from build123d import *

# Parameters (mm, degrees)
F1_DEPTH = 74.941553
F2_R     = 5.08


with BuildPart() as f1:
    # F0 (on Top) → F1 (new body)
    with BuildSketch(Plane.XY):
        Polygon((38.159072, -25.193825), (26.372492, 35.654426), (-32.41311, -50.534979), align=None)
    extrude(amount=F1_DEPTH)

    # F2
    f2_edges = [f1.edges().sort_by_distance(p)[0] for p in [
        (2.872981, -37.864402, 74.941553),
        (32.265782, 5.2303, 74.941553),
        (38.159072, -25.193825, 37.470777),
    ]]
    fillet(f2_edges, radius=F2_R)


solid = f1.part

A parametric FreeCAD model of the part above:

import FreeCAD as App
import Part
import Sketcher
from FreeCAD import Vector
Q = App.Units.Quantity


def edges_at(feature, points):
    """Names of the edges that pass closest to the given points."""
    edges = feature.Shape.Edges
    near = lambda p: min(range(len(edges)), key=lambda i: edges[i].distToShape(Part.Vertex(*p))[0])
    return sorted({f"Edge{near(p) + 1}" for p in points})


def add_polygon(sketch, points):
    """Adds a closed chain of lines whose ends are joined by coincident constraints."""
    first, n = sketch.GeometryCount, len(points)
    for a, b in zip(points, points[1:] + points[:1]):
        sketch.addGeometry(Part.LineSegment(App.Vector(*a, 0), App.Vector(*b, 0)), False)
    for i in range(n):
        sketch.addConstraint(Sketcher.Constraint("Coincident", first + i, 2, first + (i + 1) % n, 1))

doc = App.newDocument("Part")
body = doc.addObject("PartDesign::Body", "Body")

sketch1 = doc.addObject("Sketcher::SketchObject", "Sketch")
body.addObject(sketch1)
sketch1.AttachmentSupport = (doc.XY_Plane, [""])
sketch1.MapMode = "FlatFace"
add_polygon(sketch1, [(38, -25), (26, 36), (-32, -51)])
sketch1.addConstraint([
    Sketcher.Constraint("Distance", 1, Q("104.328139 mm")),
    Sketcher.Constraint("DistanceX", 1, 2, -1, 1, Q("32.41311 mm")),
    Sketcher.Constraint("DistanceY", 1, 2, -1, 1, Q("50.534979 mm")),
    Sketcher.Constraint("DistanceX", 0, 2, 2, 2, Q("11.78658 mm")),
    Sketcher.Constraint("DistanceY", 2, 2, 0, 2, Q("60.848251 mm")),
    Sketcher.Constraint("DistanceX", 1, 2, 2, 2, Q("70.572182 mm")),
])
pad1 = doc.addObject("PartDesign::Pad", "Pad")
body.addObject(pad1)
pad1.Profile = sketch1
pad1.Length = 74.941553
doc.recompute()

fillet = doc.addObject("PartDesign::Fillet", "Fillet")
body.addObject(fillet)
fillet.Base = (pad1, edges_at(pad1, [(2.873, -37.864, 74.942), (32.266, 5.23, 74.942), (38.159, -25.194, 37.471)]))
fillet.Radius = Q("0.2 in")

doc.recompute()
